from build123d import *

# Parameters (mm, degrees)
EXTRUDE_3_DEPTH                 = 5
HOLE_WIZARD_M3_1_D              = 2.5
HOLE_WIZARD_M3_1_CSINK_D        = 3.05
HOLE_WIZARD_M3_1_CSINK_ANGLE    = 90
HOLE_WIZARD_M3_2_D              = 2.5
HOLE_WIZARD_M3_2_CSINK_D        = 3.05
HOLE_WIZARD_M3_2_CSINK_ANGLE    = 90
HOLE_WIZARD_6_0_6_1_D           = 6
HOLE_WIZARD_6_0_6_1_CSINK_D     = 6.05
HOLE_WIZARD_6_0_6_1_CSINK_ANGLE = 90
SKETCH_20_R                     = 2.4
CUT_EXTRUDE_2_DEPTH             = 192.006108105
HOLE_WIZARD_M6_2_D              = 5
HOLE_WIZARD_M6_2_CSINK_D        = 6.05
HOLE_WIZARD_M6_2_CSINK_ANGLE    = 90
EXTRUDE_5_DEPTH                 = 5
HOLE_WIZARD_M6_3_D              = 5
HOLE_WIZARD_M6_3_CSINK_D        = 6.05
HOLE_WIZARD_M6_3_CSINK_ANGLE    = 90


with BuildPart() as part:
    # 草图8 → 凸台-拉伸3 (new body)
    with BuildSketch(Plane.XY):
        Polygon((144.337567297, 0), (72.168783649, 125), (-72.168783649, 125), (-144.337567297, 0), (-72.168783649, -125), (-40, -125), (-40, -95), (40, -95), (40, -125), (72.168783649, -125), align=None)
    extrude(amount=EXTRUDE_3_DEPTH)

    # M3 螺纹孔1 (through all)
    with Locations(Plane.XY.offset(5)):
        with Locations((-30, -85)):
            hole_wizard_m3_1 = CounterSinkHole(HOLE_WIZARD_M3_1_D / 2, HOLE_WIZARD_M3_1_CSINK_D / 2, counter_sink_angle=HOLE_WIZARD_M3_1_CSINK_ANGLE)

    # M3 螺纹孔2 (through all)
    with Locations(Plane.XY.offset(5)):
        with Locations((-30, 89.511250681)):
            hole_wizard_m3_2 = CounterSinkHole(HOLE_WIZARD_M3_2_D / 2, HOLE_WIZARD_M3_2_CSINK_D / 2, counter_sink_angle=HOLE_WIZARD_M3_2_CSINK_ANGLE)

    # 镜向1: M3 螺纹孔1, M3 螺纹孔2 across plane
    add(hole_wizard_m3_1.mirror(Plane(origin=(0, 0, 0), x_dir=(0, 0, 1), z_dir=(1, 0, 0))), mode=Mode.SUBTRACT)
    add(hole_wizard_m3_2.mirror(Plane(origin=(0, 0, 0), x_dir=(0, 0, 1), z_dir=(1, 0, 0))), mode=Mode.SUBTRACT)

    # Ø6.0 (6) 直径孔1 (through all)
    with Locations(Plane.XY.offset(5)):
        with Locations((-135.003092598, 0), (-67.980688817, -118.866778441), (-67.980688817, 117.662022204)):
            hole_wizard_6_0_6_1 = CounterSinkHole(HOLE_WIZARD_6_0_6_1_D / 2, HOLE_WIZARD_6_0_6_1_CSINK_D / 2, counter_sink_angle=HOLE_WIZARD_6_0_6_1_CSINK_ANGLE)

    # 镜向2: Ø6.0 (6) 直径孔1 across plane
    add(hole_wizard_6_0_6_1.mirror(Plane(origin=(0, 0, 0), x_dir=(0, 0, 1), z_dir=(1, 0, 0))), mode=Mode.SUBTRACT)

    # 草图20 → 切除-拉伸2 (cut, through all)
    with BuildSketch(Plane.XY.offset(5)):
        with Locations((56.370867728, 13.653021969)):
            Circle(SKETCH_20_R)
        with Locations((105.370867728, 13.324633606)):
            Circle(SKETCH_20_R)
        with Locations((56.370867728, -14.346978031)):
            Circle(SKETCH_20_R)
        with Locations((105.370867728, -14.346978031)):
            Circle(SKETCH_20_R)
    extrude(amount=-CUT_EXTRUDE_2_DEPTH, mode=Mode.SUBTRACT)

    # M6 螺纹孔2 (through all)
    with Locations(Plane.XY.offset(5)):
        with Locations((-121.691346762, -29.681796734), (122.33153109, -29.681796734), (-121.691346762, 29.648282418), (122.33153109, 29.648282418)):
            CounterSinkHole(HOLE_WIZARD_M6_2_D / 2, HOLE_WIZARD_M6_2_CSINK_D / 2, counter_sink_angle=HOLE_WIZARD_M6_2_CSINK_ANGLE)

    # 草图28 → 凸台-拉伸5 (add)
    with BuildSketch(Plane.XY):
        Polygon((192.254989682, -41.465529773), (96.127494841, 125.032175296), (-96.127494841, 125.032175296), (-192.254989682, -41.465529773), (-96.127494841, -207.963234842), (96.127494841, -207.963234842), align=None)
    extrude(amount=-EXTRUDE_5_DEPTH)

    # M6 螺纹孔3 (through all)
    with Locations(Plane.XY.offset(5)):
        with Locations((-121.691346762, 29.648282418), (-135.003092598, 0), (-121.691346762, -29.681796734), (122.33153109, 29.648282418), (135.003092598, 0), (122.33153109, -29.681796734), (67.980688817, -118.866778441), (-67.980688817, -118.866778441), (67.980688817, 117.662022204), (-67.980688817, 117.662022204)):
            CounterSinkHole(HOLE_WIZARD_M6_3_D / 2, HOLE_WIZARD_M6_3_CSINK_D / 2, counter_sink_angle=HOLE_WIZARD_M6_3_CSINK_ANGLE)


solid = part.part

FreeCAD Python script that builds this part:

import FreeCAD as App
import Part
import Sketcher
from FreeCAD import Vector
Q = App.Units.Quantity

doc = App.newDocument("Part")
body = doc.addObject("PartDesign::Body", "Body")

# Sketch on XY plane
sketch1 = body.newObject("Sketcher::SketchObject", "Sketch")
sketch1.AttachmentSupport = (doc.getObject("XY_Plane"), [""])
sketch1.MapMode = "FlatFace"
sketch1.addGeometry([
    Part.LineSegment(Vector(144, 0, 0), Vector(72, 125, 0)),  # 0
    Part.LineSegment(Vector(72, 125, 0), Vector(-72, 125, 0)),  # 1
    Part.LineSegment(Vector(-72, 125, 0), Vector(-144, 0, 0)),  # 2
    Part.LineSegment(Vector(-144, 0, 0), Vector(-72, -125, 0)),  # 3
    Part.LineSegment(Vector(-72, -125, 0), Vector(-40, -125, 0)),  # 4
    Part.LineSegment(Vector(-40, -125, 0), Vector(-40, -95, 0)),  # 5
    Part.LineSegment(Vector(-40, -95, 0), Vector(40, -95, 0)),  # 6
    Part.LineSegment(Vector(40, -95, 0), Vector(40, -125, 0)),  # 7
    Part.LineSegment(Vector(40, -125, 0), Vector(72, -125, 0)),  # 8
    Part.LineSegment(Vector(72, -125, 0), Vector(144, 0, 0)),  # 9
], False)
sketch1.addConstraint([
    Sketcher.Constraint("Coincident", 0, 2, 1, 1),
    Sketcher.Constraint("Coincident", 1, 2, 2, 1),
    Sketcher.Constraint("Coincident", 2, 2, 3, 1),
    Sketcher.Constraint("Coincident", 3, 2, 4, 1),
    Sketcher.Constraint("Coincident", 4, 2, 5, 1),
    Sketcher.Constraint("Coincident", 5, 2, 6, 1),
    Sketcher.Constraint("Coincident", 6, 2, 7, 1),
    Sketcher.Constraint("Coincident", 7, 2, 8, 1),
    Sketcher.Constraint("Coincident", 8, 2, 9, 1),
    Sketcher.Constraint("Coincident", 9, 2, 0, 1),
    Sketcher.Constraint("Horizontal", 1),
    Sketcher.Constraint("Horizontal", 4),
    Sketcher.Constraint("Vertical", 5),
    Sketcher.Constraint("Horizontal", 6),
    Sketcher.Constraint("Vertical", 7),
    Sketcher.Constraint("Horizontal", 8),
    Sketcher.Constraint("Symmetric", 0, 2, 3, 2, -1, 1),
    Sketcher.Constraint("Symmetric", 1, 2, 8, 2, -1, 1),
    Sketcher.Constraint("Symmetric", 2, 2, 9, 2, -1, 1),
    Sketcher.Constraint("PointOnObject", 2, 2, -1),
    Sketcher.Constraint("Vertical", 1, 2, 3, 2),
    Sketcher.Constraint("Equal", 4, 8),
    Sketcher.Constraint("DistanceX", 6, 1, 6, 2, 80.0),
    Sketcher.Constraint("DistanceY", 5, 1, 5, 2, 30.0),
    Sketcher.Constraint("Angle", 0, Q("120 deg")),
    Sketcher.Constraint("DistanceY", -1, 1, 0, 2, 125.0),
    Sketcher.Constraint("DistanceX", 1, 2, 1, 1, 144.337567),
])
pad1 = body.newObject("PartDesign::Pad", "Pad")
pad1.Profile = sketch1
pad1.Length = 5

# Sketch on XY plane
sketch2 = body.newObject("Sketcher::SketchObject", "Sketch001")
sketch2.AttachmentSupport = (doc.getObject("XY_Plane"), [""])
sketch2.MapMode = "FlatFace"
sketch2.AttachmentOffset = App.Placement(Vector(0, 0, 5), App.Rotation())
sketch2.addGeometry(Part.Circle(Vector(-30, -85, 0), Vector(0, 0, 1), 1.2), False)
sketch2.addConstraint([
    Sketcher.Constraint("Diameter", 0, 2.5),
    Sketcher.Constraint("DistanceX", 0, 3, -1, 1, 30.0),
    Sketcher.Constraint("DistanceY", 0, 3, -1, 1, 85.0),
])
doc.recompute()
hole = body.newObject("PartDesign::Hole", "Hole")
hole.Profile = sketch2
hole.ThreadType = "None"
hole.Diameter = 2.5
hole.DepthType = "ThroughAll"
hole.HoleCutType = "Countersink"
hole.HoleCutDiameter = 3.05
hole.HoleCutCountersinkAngle = 90

# Sketch on XY plane
sketch3 = body.newObject("Sketcher::SketchObject", "Sketch002")
sketch3.AttachmentSupport = (doc.getObject("XY_Plane"), [""])
sketch3.MapMode = "FlatFace"
sketch3.AttachmentOffset = App.Placement(Vector(0, 0, 5), App.Rotation())
sketch3.addGeometry(Part.Circle(Vector(-30, 89.5, 0), Vector(0, 0, 1), 1.2), False)
sketch3.addConstraint([
    Sketcher.Constraint("Diameter", 0, 2.5),
    Sketcher.Constraint("DistanceX", 0, 3, -1, 1, 30.0),
    Sketcher.Constraint("DistanceY", -1, 1, 0, 3, 89.511251),
])
doc.recompute()
hole2 = body.newObject("PartDesign::Hole", "Hole001")
hole2.Profile = sketch3
hole2.ThreadType = "None"
hole2.Diameter = 2.5
hole2.DepthType = "ThroughAll"
hole2.HoleCutType = "Countersink"
hole2.HoleCutDiameter = 3.05
hole2.HoleCutCountersinkAngle = 90
doc.recompute()

mirrored = body.newObject("PartDesign::Mirrored", "Mirrored")
mirrored.Originals = [hole, hole2]
mirrored.MirrorPlane = (doc.getObject("YZ_Plane"), [""])
body.Tip = mirrored

# Sketch on XY plane
sketch4 = body.newObject("Sketcher::SketchObject", "Sketch003")
sketch4.AttachmentSupport = (doc.getObject("XY_Plane"), [""])
sketch4.MapMode = "FlatFace"
sketch4.AttachmentOffset = App.Placement(Vector(0, 0, 5), App.Rotation())
sketch4.addGeometry([
    Part.Circle(Vector(-135, 0, 0), Vector(0, 0, 1), 3),
    Part.Circle(Vector(-68, -118.9, 0), Vector(0, 0, 1), 3),
    Part.Circle(Vector(-68, 117.7, 0), Vector(0, 0, 1), 3),
], False)
sketch4.addConstraint([
    Sketcher.Constraint("Equal", 0, 1),
    Sketcher.Constraint("Equal", 1, 2),
    Sketcher.Constraint("PointOnObject", 0, 3, -1),
    Sketcher.Constraint("Vertical", 1, 3, 2, 3),
    Sketcher.Constraint("Diameter", 0, 6.0),
    Sketcher.Constraint("DistanceY", 1, 3, 2, 3, 236.528801),
    Sketcher.Constraint("DistanceX", 1, 3, -1, 1, 67.980689),
    Sketcher.Constraint("DistanceY", 1, 3, -1, 1, 118.866778),
    Sketcher.Constraint("DistanceX", 0, 3, -1, 1, 135.003093),
])
doc.recompute()
hole3 = body.newObject("PartDesign::Hole", "Hole002")
hole3.Profile = sketch4
hole3.ThreadType = "None"
hole3.Diameter = 6
hole3.DepthType = "ThroughAll"
hole3.HoleCutType = "Countersink"
hole3.HoleCutDiameter = 6.05
hole3.HoleCutCountersinkAngle = 90
doc.recompute()

mirrored2 = body.newObject("PartDesign::Mirrored", "Mirrored001")
mirrored2.Originals = [hole3]
mirrored2.MirrorPlane = (doc.getObject("YZ_Plane"), [""])
body.Tip = mirrored2

# Sketch on XY plane
sketch5 = body.newObject("Sketcher::SketchObject", "Sketch004")
sketch5.AttachmentSupport = (doc.getObject("XY_Plane"), [""])
sketch5.MapMode = "FlatFace"
sketch5.AttachmentOffset = App.Placement(Vector(0, 0, 5), App.Rotation())
sketch5.addGeometry([
    Part.Circle(Vector(56.4, 13.7, 0), Vector(0, 0, 1), 2.4),
    Part.Circle(Vector(105.4, 13.3, 0), Vector(0, 0, 1), 2.4),
    Part.Circle(Vector(56.4, -14.3, 0), Vector(0, 0, 1), 2.4),
    Part.Circle(Vector(105.4, -14.3, 0), Vector(0, 0, 1), 2.4),
], False)
sketch5.addConstraint([
    Sketcher.Constraint("Equal", 0, 1),
    Sketcher.Constraint("Equal", 1, 2),
    Sketcher.Constraint("Equal", 2, 3),
    Sketcher.Constraint("Horizontal", 2, 3, 3, 3),
    Sketcher.Constraint("Vertical", 0, 3, 2, 3),
    Sketcher.Constraint("Vertical", 1, 3, 3, 3),
    Sketcher.Constraint("Diameter", 0, 4.8),
    Sketcher.Constraint("DistanceX", 0, 3, 1, 3, 49.0),
    Sketcher.Constraint("DistanceY", 2, 3, 0, 3, 28.0),
    Sketcher.Constraint("DistanceY", -1, 1, 0, 3, 13.653022),
    Sketcher.Constraint("DistanceY", 1, 3, 0, 3, 0.328388),
    Sketcher.Constraint("DistanceX", -1, 1, 0, 3, 56.370868),
])
pocket1 = body.newObject("PartDesign::Pocket", "Pocket")
pocket1.Profile = sketch5
pocket1.Type = "ThroughAll"

# Sketch on XY plane
sketch6 = body.newObject("Sketcher::SketchObject", "Sketch005")
sketch6.AttachmentSupport = (doc.getObject("XY_Plane"), [""])
sketch6.MapMode = "FlatFace"
sketch6.AttachmentOffset = App.Placement(Vector(0, 0, 5), App.Rotation())
sketch6.addGeometry([
    Part.Circle(Vector(-121.7, -29.7, 0), Vector(0, 0, 1), 2.5),
    Part.Circle(Vector(122.3, -29.7, 0), Vector(0, 0, 1), 2.5),
    Part.Circle(Vector(-121.7, 29.6, 0), Vector(0, 0, 1), 2.5),
    Part.Circle(Vector(122.3, 29.6, 0), Vector(0, 0, 1), 2.5),
], False)
sketch6.addConstraint([
    Sketcher.Constraint("Equal", 0, 1),
    Sketcher.Constraint("Equal", 1, 2),
    Sketcher.Constraint("Equal", 2, 3),
    Sketcher.Constraint("Horizontal", 0, 3, 1, 3),
    Sketcher.Constraint("Horizontal", 2, 3, 3, 3),
    Sketcher.Constraint("Vertical", 0, 3, 2, 3),
    Sketcher.Constraint("Vertical", 1, 3, 3, 3),
    Sketcher.Constraint("Diameter", 0, 5.0),
    Sketcher.Constraint("DistanceX", -1, 1, 1, 3, 122.331531),
    Sketcher.Constraint("DistanceY", 0, 3, 2, 3, 59.330079),
    Sketcher.Constraint("DistanceX", 0, 3, -1, 1, 121.691347),
    Sketcher.Constraint("DistanceY", 0, 3, -1, 1, 29.681797),
])
doc.recompute()
hole4 = body.newObject("PartDesign::Hole", "Hole003")
hole4.Profile = sketch6
hole4.ThreadType = "None"
hole4.Diameter = 5
hole4.DepthType = "ThroughAll"
hole4.HoleCutType = "Countersink"
hole4.HoleCutDiameter = 6.05
hole4.HoleCutCountersinkAngle = 90

# Sketch on XY plane
sketch7 = body.newObject("Sketcher::SketchObject", "Sketch006")
sketch7.AttachmentSupport = (doc.getObject("XY_Plane"), [""])
sketch7.MapMode = "FlatFace"
sketch7.addGeometry([
    Part.LineSegment(Vector(192, -41, 0), Vector(96, 125, 0)),  # 0
    Part.LineSegment(Vector(96, 125, 0), Vector(-96, 125, 0)),  # 1
    Part.LineSegment(Vector(-96, 125, 0), Vector(-192, -41, 0)),  # 2
    Part.LineSegment(Vector(-192, -41, 0), Vector(-96, -208, 0)),  # 3
    Part.LineSegment(Vector(-96, -208, 0), Vector(96, -208, 0)),  # 4
    Part.LineSegment(Vector(96, -208, 0), Vector(192, -41, 0)),  # 5
], False)
sketch7.addConstraint([
    Sketcher.Constraint("Coincident", 0, 2, 1, 1),
    Sketcher.Constraint("Coincident", 1, 2, 2, 1),
    Sketcher.Constraint("Coincident", 2, 2, 3, 1),
    Sketcher.Constraint("Coincident", 3, 2, 4, 1),
    Sketcher.Constraint("Coincident", 4, 2, 5, 1),
    Sketcher.Constraint("Coincident", 5, 2, 0, 1),
    Sketcher.Constraint("Horizontal", 1),
    Sketcher.Constraint("Horizontal", 4),
    Sketcher.Constraint("Symmetric", 2, 2, 5, 2, -2),
    Sketcher.Constraint("Parallel", 0, 3),
    Sketcher.Constraint("Parallel", 2, 5),
    Sketcher.Constraint("Vertical", 1, 2, 3, 2),
    Sketcher.Constraint("Vertical", 0, 2, 4, 2),
    Sketcher.Constraint("Angle", 0, Q("120 deg")),
    Sketcher.Constraint("DistanceX", 1, 2, 1, 1, 192.25499),
    Sketcher.Constraint("Distance", 0, 192.25499),
    Sketcher.Constraint("DistanceY", 2, 2, -1, 1, 41.46553),
])
pad2 = body.newObject("PartDesign::Pad", "Pad001")
pad2.Profile = sketch7
pad2.Length = 5
pad2.Reversed = True

# Sketch on XY plane
sketch8 = body.newObject("Sketcher::SketchObject", "Sketch007")
sketch8.AttachmentSupport = (doc.getObject("XY_Plane"), [""])
sketch8.MapMode = "FlatFace"
sketch8.AttachmentOffset = App.Placement(Vector(0, 0, 5), App.Rotation())
sketch8.addGeometry([
    Part.Circle(Vector(-121.7, 29.6, 0), Vector(0, 0, 1), 2.5),  # 0
    Part.Circle(Vector(-135, 0, 0), Vector(0, 0, 1), 2.5),  # 1
    Part.Circle(Vector(-121.7, -29.7, 0), Vector(0, 0, 1), 2.5),  # 2
    Part.Circle(Vector(122.3, 29.6, 0), Vector(0, 0, 1), 2.5),  # 3
    Part.Circle(Vector(135, 0, 0), Vector(0, 0, 1), 2.5),  # 4
    Part.Circle(Vector(122.3, -29.7, 0), Vector(0, 0, 1), 2.5),  # 5
    Part.Circle(Vector(68, -118.9, 0), Vector(0, 0, 1), 2.5),  # 6
    Part.Circle(Vector(-68, -118.9, 0), Vector(0, 0, 1), 2.5),  # 7
    Part.Circle(Vector(68, 117.7, 0), Vector(0, 0, 1), 2.5),  # 8
    Part.Circle(Vector(-68, 117.7, 0), Vector(0, 0, 1), 2.5),  # 9
], False)
sketch8.addConstraint([
    Sketcher.Constraint("Equal", 0, 1),
    Sketcher.Constraint("Equal", 1, 2),
    Sketcher.Constraint("Equal", 2, 3),
    Sketcher.Constraint("Equal", 3, 4),
    Sketcher.Constraint("Equal", 4, 5),
    Sketcher.Constraint("Equal", 5, 6),
    Sketcher.Constraint("Equal", 6, 7),
    Sketcher.Constraint("Equal", 7, 8),
    Sketcher.Constraint("Equal", 8, 9),
    Sketcher.Constraint("Symmetric", 1, 3, 4, 3, -1, 1),
    Sketcher.Constraint("Symmetric", 6, 3, 7, 3, -2),
    Sketcher.Constraint("Symmetric", 8, 3, 9, 3, -2),
    Sketcher.Constraint("PointOnObject", 1, 3, -1),
    Sketcher.Constraint("Horizontal", 0, 3, 3, 3),
    Sketcher.Constraint("Horizontal", 2, 3, 5, 3),
    Sketcher.Constraint("Vertical", 0, 3, 2, 3),
    Sketcher.Constraint("Vertical", 3, 3, 5, 3),
    Sketcher.Constraint("Vertical", 6, 3, 8, 3),
    Sketcher.Constraint("Diameter", 0, 5.0),
    Sketcher.Constraint("DistanceX", -1, 1, 3, 3, 122.331531),
    Sketcher.Constraint("DistanceX", -1, 1, 6, 3, 67.980689),
    Sketcher.Constraint("DistanceY", 6, 3, -1, 1, 118.866778),
    Sketcher.Constraint("DistanceY", 2, 3, 0, 3, 59.330079),
    Sketcher.Constraint("DistanceX", 3, 3, 4, 3, 12.671562),
    Sketcher.Constraint("DistanceX", 0, 3, 4, 3, 256.694439),
    Sketcher.Constraint("DistanceY", 6, 3, 5, 3, 89.184982),
    Sketcher.Constraint("DistanceY", 3, 3, 8, 3, 88.01374),
])
doc.recompute()
hole5 = body.newObject("PartDesign::Hole", "Hole004")
hole5.Profile = sketch8
hole5.ThreadType = "None"
hole5.Diameter = 5
hole5.DepthType = "ThroughAll"
hole5.HoleCutType = "Countersink"
hole5.HoleCutDiameter = 6.05
hole5.HoleCutCountersinkAngle = 90

doc.recompute()
